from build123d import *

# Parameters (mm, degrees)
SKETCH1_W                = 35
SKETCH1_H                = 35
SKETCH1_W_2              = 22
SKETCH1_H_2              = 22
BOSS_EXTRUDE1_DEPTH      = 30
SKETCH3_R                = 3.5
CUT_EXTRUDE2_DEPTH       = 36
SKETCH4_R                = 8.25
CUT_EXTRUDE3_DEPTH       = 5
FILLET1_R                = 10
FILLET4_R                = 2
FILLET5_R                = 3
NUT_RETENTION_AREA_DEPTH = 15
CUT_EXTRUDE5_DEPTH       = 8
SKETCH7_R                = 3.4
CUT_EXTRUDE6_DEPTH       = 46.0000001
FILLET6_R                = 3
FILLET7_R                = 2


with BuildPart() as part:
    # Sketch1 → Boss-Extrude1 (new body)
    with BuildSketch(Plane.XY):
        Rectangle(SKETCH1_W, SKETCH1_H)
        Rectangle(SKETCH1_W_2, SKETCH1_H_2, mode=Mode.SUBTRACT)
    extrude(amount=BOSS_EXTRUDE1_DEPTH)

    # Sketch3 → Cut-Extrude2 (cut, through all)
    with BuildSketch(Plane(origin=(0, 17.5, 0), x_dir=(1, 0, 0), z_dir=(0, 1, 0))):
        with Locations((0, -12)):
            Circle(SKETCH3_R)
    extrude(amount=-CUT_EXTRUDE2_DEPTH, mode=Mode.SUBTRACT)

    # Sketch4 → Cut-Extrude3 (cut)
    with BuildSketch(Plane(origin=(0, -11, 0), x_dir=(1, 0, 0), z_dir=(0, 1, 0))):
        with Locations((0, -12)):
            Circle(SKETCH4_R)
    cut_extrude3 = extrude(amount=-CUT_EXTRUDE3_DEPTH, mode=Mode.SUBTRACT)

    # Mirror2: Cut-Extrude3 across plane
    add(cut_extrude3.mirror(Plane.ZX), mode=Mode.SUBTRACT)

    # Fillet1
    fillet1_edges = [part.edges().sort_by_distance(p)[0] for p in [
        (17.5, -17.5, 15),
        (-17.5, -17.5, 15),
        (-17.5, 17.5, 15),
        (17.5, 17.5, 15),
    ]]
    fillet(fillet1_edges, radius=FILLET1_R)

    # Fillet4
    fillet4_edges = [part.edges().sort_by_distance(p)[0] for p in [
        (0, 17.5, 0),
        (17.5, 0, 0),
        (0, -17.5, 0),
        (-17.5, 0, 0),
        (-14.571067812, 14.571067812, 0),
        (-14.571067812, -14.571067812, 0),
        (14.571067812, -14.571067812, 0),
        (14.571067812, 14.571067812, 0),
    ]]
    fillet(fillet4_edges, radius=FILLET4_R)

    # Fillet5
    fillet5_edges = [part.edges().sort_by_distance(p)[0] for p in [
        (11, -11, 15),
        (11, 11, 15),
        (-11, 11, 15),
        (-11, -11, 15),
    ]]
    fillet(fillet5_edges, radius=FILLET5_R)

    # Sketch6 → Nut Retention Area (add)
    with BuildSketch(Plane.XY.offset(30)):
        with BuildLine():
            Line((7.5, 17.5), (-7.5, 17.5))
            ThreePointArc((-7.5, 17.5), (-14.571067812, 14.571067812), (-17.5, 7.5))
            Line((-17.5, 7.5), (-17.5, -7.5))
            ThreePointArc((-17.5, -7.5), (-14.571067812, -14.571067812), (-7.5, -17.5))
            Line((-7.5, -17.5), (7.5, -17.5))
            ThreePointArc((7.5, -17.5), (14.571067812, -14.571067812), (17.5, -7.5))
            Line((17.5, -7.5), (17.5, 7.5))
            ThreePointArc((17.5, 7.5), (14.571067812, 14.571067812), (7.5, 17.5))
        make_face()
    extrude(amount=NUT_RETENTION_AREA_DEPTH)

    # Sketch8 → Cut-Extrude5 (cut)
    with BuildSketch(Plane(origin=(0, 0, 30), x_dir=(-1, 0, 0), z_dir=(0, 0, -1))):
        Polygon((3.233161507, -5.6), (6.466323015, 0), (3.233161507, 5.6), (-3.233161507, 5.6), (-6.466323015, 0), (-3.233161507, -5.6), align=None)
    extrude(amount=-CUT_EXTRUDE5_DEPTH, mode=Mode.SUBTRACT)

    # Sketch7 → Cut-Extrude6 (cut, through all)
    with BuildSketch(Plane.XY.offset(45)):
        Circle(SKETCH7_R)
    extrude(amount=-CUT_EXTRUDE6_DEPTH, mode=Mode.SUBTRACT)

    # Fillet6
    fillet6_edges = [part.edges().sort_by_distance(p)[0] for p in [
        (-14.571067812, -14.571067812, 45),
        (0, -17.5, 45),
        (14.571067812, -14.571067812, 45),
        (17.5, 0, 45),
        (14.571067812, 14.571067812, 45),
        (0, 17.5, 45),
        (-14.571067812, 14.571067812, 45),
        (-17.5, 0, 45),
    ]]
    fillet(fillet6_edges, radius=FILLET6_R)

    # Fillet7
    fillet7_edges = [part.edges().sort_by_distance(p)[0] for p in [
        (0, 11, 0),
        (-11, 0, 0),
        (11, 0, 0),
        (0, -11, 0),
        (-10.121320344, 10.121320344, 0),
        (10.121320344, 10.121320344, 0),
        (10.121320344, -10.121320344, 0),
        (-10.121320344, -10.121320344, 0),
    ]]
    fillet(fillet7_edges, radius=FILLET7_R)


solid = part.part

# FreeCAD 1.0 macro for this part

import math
import FreeCAD as App
import Part
import Sketcher

V = App.Vector
Q = App.Units.Quantity


def edges_at(feature, points):
    """Names of the edges that pass closest to the given points."""
    edges = feature.Shape.Edges
    near = lambda p: min(range(len(edges)), key=lambda i: edges[i].distToShape(Part.Vertex(*p))[0])
    return sorted({f"Edge{near(p) + 1}" for p in points})


def add_polygon(sketch, points):
    """Adds a closed chain of lines whose ends are joined by coincident constraints."""
    first, n = sketch.GeometryCount, len(points)
    for a, b in zip(points, points[1:] + points[:1]):
        sketch.addGeometry(Part.LineSegment(App.Vector(*a, 0), App.Vector(*b, 0)), False)
    for i in range(n):
        sketch.addConstraint(Sketcher.Constraint("Coincident", first + i, 2, first + (i + 1) % n, 1))

doc = App.newDocument("Part")
body = doc.addObject("PartDesign::Body", "Body")

# Sketch on XY plane
sketch1 = body.newObject("Sketcher::SketchObject", "Sketch")
sketch1.AttachmentSupport = (doc.getObject("XY_Plane"), [""])
sketch1.MapMode = "FlatFace"
add_polygon(sketch1, [(-18, 18), (-18, -18), (18, -18), (18, 18)])  # lines 0-3
add_polygon(sketch1, [(11, -11), (-11, -11), (-11, 11), (11, 11)])  # lines 4-7
sketch1.addConstraint([
    Sketcher.Constraint("Vertical", 0),
    Sketcher.Constraint("Horizontal", 1),
    Sketcher.Constraint("Vertical", 2),
    Sketcher.Constraint("Horizontal", 3),
    Sketcher.Constraint("Horizontal", 4),
    Sketcher.Constraint("Vertical", 5),
    Sketcher.Constraint("Horizontal", 6),
    Sketcher.Constraint("Vertical", 7),
    Sketcher.Constraint("Symmetric", 0, 2, 2, 2, -1, 1),
    Sketcher.Constraint("Symmetric", 4, 2, 6, 2, -1, 1),
    Sketcher.Constraint("Equal", 3, 0),
    Sketcher.Constraint("Equal", 6, 5),
    Sketcher.Constraint("DistanceX", 1, 1, 1, 2, Q("35 mm")),
    Sketcher.Constraint("DistanceX", 4, 2, 4, 1, Q("22 mm")),
])
pad1 = body.newObject("PartDesign::Pad", "Pad")
pad1.Profile = sketch1
pad1.Length = 30

# Sketch on XZ plane
sketch2 = body.newObject("Sketcher::SketchObject", "Sketch001")
sketch2.AttachmentSupport = (doc.getObject("XZ_Plane"), [""])
sketch2.MapMode = "FlatFace"
sketch2.AttachmentOffset = App.Placement(V(0, 0, -17.5), App.Rotation())
sketch2.addGeometry(Part.Circle(V(0, 12, 0), V(0, 0, 1), 3.5), False)
sketch2.addConstraint([
    Sketcher.Constraint("PointOnObject", 0, 3, -2),
    Sketcher.Constraint("Diameter", 0, Q("7 mm")),
    Sketcher.Constraint("DistanceY", -1, 1, 0, 3, Q("12 mm")),
])
pocket1 = body.newObject("PartDesign::Pocket", "Pocket")
pocket1.Profile = sketch2
pocket1.Type = "ThroughAll"
pocket1.Reversed = True

# Sketch on XZ plane
sketch3 = body.newObject("Sketcher::SketchObject", "Sketch002")
sketch3.AttachmentSupport = (doc.getObject("XZ_Plane"), [""])
sketch3.MapMode = "FlatFace"
sketch3.AttachmentOffset = App.Placement(V(0, 0, 11), App.Rotation())
sketch3.addGeometry(Part.Circle(V(0, 12, 0), V(0, 0, 1), 8), False)
sketch3.addConstraint([
    Sketcher.Constraint("PointOnObject", 0, 3, -2),
    Sketcher.Constraint("Diameter", 0, Q("16.5 mm")),
    Sketcher.Constraint("DistanceY", -1, 1, 0, 3, Q("12 mm")),
])
pocket2 = body.newObject("PartDesign::Pocket", "Pocket001")
pocket2.Profile = sketch3
pocket2.Length = 5
pocket2.Reversed = True
doc.recompute()

mirrored = body.newObject("PartDesign::Mirrored", "Mirrored")
mirrored.Originals = [pocket2]
mirrored.MirrorPlane = (doc.getObject("XZ_Plane"), [""])
body.Tip = mirrored
doc.recompute()

fillet = body.newObject("PartDesign::Fillet", "Fillet")
fillet.Base = (mirrored, edges_at(mirrored, [
    (17.5, -17.5, 15),
    (-17.5, -17.5, 15),
    (-17.5, 17.5, 15),
    (17.5, 17.5, 15),
]))
fillet.Radius = 10
doc.recompute()

fillet2 = body.newObject("PartDesign::Fillet", "Fillet001")
fillet2.Base = (fillet, edges_at(fillet, [
    (0, 17.5, 0),
    (17.5, 0, 0),
    (0, -17.5, 0),
    (-17.5, 0, 0),
    (-14.571, 14.571, 0),
    (-14.571, -14.571, 0),
    (14.571, -14.571, 0),
    (14.571, 14.571, 0),
]))
fillet2.Radius = 2
doc.recompute()

fillet3 = body.newObject("PartDesign::Fillet", "Fillet002")
fillet3.Base = (fillet2, edges_at(fillet2, [
    (11, -11, 15),
    (11, 11, 15),
    (-11, 11, 15),
    (-11, -11, 15),
]))
fillet3.Radius = 3

# Sketch on XY plane
sketch4 = body.newObject("Sketcher::SketchObject", "Sketch003")
sketch4.AttachmentSupport = (doc.getObject("XY_Plane"), [""])
sketch4.MapMode = "FlatFace"
sketch4.AttachmentOffset = App.Placement(V(0, 0, 30), App.Rotation())
sketch4.addGeometry([
    Part.LineSegment(V(8, 18, 0), V(-8, 18, 0)),  # 0
    Part.ArcOfCircle(Part.Circle(V(-8, 8, 0), V(0, 0, 1), 10), math.radians(90), math.radians(180)),  # 1
    Part.LineSegment(V(-18, 8, 0), V(-18, -8, 0)),  # 2
    Part.ArcOfCircle(Part.Circle(V(-8, -8, 0), V(0, 0, 1), 10), math.radians(180), math.radians(270)),  # 3
    Part.LineSegment(V(-8, -18, 0), V(8, -18, 0)),  # 4
    Part.ArcOfCircle(Part.Circle(V(8, -8, 0), V(0, 0, 1), 10), math.radians(-90), math.radians(0)),  # 5
    Part.LineSegment(V(18, -8, 0), V(18, 8, 0)),  # 6
    Part.ArcOfCircle(Part.Circle(V(8, 8, 0), V(0, 0, 1), 10), math.radians(0), math.radians(90)),  # 7
], False)
sketch4.addConstraint([
    Sketcher.Constraint("Tangent", 0, 2, 1, 1),
    Sketcher.Constraint("Tangent", 1, 2, 2, 1),
    Sketcher.Constraint("Tangent", 2, 2, 3, 1),
    Sketcher.Constraint("Tangent", 3, 2, 4, 1),
    Sketcher.Constraint("Tangent", 4, 2, 5, 1),
    Sketcher.Constraint("Tangent", 5, 2, 6, 1),
    Sketcher.Constraint("Tangent", 6, 2, 7, 1),
    Sketcher.Constraint("Tangent", 7, 2, 0, 1),
    Sketcher.Constraint("Horizontal", 0),
    Sketcher.Constraint("Vertical", 2),
    Sketcher.Constraint("Horizontal", 4),
    Sketcher.Constraint("Vertical", 6),
    Sketcher.Constraint("Equal", 1, 3),
    Sketcher.Constraint("Equal", 3, 5),
    Sketcher.Constraint("Equal", 5, 7),
    Sketcher.Constraint("Symmetric", 1, 3, 5, 3, -1, 1),
    Sketcher.Constraint("Equal", 4, 2),
    Sketcher.Constraint("Radius", 1, Q("10 mm")),
    Sketcher.Constraint("DistanceX", 0, 2, 0, 1, Q("15 mm")),
])
pad2 = body.newObject("PartDesign::Pad", "Pad001")
pad2.Profile = sketch4
pad2.Length = 15

# Sketch on XY plane
sketch5 = body.newObject("Sketcher::SketchObject", "Sketch004")
sketch5.AttachmentSupport = (doc.getObject("XY_Plane"), [""])
sketch5.MapMode = "FlatFace"
sketch5.AttachmentOffset = App.Placement(V(0, 0, 30), App.Rotation())
add_polygon(sketch5, [(-3, -6), (-6, 0), (-3, 6), (3, 6), (6, 0), (3, -6)])  # lines 0-5
sketch5.addConstraint([
    Sketcher.Constraint("Horizontal", 2),
    Sketcher.Constraint("Horizontal", 5),
    Sketcher.Constraint("Symmetric", 0, 2, 3, 2, -1, 1),
    Sketcher.Constraint("Symmetric", 1, 2, 4, 2, -1, 1),
    Sketcher.Constraint("PointOnObject", 0, 2, -1),
    Sketcher.Constraint("Parallel", 0, 3),
    Sketcher.Constraint("Vertical", 2, 2, 4, 2),
    Sketcher.Constraint("Angle", 0, Q("120 deg")),
    Sketcher.Constraint("DistanceY", -1, 1, 1, 2, Q("5.6 mm")),
    Sketcher.Constraint("DistanceX", 2, 1, 2, 2, Q("6.466323 mm")),
])
pocket3 = body.newObject("PartDesign::Pocket", "Pocket002")
pocket3.Profile = sketch5
pocket3.Length = 8
pocket3.Reversed = True

# Sketch on XY plane
sketch6 = body.newObject("Sketcher::SketchObject", "Sketch005")
sketch6.AttachmentSupport = (doc.getObject("XY_Plane"), [""])
sketch6.MapMode = "FlatFace"
sketch6.AttachmentOffset = App.Placement(V(0, 0, 45), App.Rotation())
sketch6.addGeometry(Part.Circle(V(0, 0, 0), V(0, 0, 1), 3.4), False)
sketch6.addConstraint([
    Sketcher.Constraint("Coincident", 0, 3, -1, 1),
    Sketcher.Constraint("Diameter", 0, Q("6.8 mm")),
])
pocket4 = body.newObject("PartDesign::Pocket", "Pocket003")
pocket4.Profile = sketch6
pocket4.Type = "ThroughAll"
doc.recompute()

fillet4 = body.newObject("PartDesign::Fillet", "Fillet003")
fillet4.Base = (pocket4, edges_at(pocket4, [
    (-14.571, -14.571, 45),
    (0, -17.5, 45),
    (14.571, -14.571, 45),
    (17.5, 0, 45),
    (14.571, 14.571, 45),
    (0, 17.5, 45),
    (-14.571, 14.571, 45),
    (-17.5, 0, 45),
]))
fillet4.Radius = 3
doc.recompute()

fillet5 = body.newObject("PartDesign::Fillet", "Fillet004")
fillet5.Base = (fillet4, edges_at(fillet4, [
    (0, 11, 0),
    (-11, 0, 0),
    (11, 0, 0),
    (0, -11, 0),
    (-10.121, 10.121, 0),
    (10.121, 10.121, 0),
    (10.121, -10.121, 0),
    (-10.121, -10.121, 0),
]))
fillet5.Radius = 2

doc.recompute()
